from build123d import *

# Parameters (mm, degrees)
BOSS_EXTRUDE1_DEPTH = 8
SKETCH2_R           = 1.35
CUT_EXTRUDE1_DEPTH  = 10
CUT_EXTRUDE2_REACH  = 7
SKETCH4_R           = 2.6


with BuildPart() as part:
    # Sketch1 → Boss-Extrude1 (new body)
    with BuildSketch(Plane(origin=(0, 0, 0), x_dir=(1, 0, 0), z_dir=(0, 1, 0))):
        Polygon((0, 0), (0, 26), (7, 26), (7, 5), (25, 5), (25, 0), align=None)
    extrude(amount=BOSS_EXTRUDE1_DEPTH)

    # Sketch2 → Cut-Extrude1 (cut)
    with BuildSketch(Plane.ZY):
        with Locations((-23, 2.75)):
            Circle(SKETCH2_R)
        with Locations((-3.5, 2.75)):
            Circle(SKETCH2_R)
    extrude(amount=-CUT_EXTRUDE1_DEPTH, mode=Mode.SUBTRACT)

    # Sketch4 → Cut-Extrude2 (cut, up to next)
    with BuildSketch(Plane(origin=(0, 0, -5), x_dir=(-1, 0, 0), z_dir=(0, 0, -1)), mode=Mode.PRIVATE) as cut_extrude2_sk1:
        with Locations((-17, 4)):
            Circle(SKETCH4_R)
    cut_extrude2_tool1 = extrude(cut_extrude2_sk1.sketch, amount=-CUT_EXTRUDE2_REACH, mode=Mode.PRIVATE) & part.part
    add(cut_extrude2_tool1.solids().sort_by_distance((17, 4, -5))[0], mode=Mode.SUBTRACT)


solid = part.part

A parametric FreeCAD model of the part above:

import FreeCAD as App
import Part
import Sketcher

V = App.Vector
Q = App.Units.Quantity

doc = App.newDocument("Part")
body = doc.addObject("PartDesign::Body", "Body")

# Sketch on XZ plane
sketch1 = doc.addObject("Sketcher::SketchObject", "Sketch")
body.addObject(sketch1)
sketch1.AttachmentSupport = (doc.XZ_Plane, [""])
sketch1.MapMode = "FlatFace"
sketch1.addGeometry(Part.LineSegment(V(0, -26, 0), V(0, 0, 0)), False)
sketch1.addGeometry(Part.LineSegment(V(0, 0, 0), V(25, 0, 0)), False)
sketch1.addGeometry(Part.LineSegment(V(25, 0, 0), V(25, -5, 0)), False)
sketch1.addGeometry(Part.LineSegment(V(25, -5, 0), V(7, -5, 0)), False)
sketch1.addGeometry(Part.LineSegment(V(7, -5, 0), V(7, -26, 0)), False)
sketch1.addGeometry(Part.LineSegment(V(7, -26, 0), V(0, -26, 0)), False)
sketch1.addConstraint(Sketcher.Constraint("Coincident", 0, 2, 1, 1))
sketch1.addConstraint(Sketcher.Constraint("Coincident", 1, 2, 2, 1))
sketch1.addConstraint(Sketcher.Constraint("Coincident", 2, 2, 3, 1))
sketch1.addConstraint(Sketcher.Constraint("Coincident", 3, 2, 4, 1))
sketch1.addConstraint(Sketcher.Constraint("Coincident", 4, 2, 5, 1))
sketch1.addConstraint(Sketcher.Constraint("Coincident", 5, 2, 0, 1))
sketch1.addConstraint(Sketcher.Constraint("Vertical", 0))
sketch1.addConstraint(Sketcher.Constraint("Horizontal", 1))
sketch1.addConstraint(Sketcher.Constraint("Vertical", 2))
sketch1.addConstraint(Sketcher.Constraint("Horizontal", 3))
sketch1.addConstraint(Sketcher.Constraint("Vertical", 4))
sketch1.addConstraint(Sketcher.Constraint("Horizontal", 5))
sketch1.addConstraint(Sketcher.Constraint("Coincident", 0, 2, -1, 1))
sketch1.addConstraint(Sketcher.Constraint("DistanceX", 1, 1, 1, 2, Q("25 mm")))
sketch1.addConstraint(Sketcher.Constraint("DistanceX", 3, 2, 3, 1, Q("18 mm")))
sketch1.addConstraint(Sketcher.Constraint("DistanceY", 0, 1, 0, 2, Q("26 mm")))
sketch1.addConstraint(Sketcher.Constraint("DistanceY", 2, 2, 2, 1, Q("5 mm")))
pad1 = doc.addObject("PartDesign::Pad", "Pad")
body.addObject(pad1)
pad1.Profile = sketch1
pad1.Length = 8
pad1.Reversed = True

# Sketch on YZ plane
sketch2 = doc.addObject("Sketcher::SketchObject", "Sketch001")
body.addObject(sketch2)
sketch2.AttachmentSupport = (doc.YZ_Plane, [""])
sketch2.MapMode = "FlatFace"
sketch2.addGeometry(Part.Circle(V(2.8, -23, 0), V(0, 0, 1), 1.4), False)
sketch2.addGeometry(Part.Circle(V(2.8, -3.5, 0), V(0, 0, 1), 1.4), False)
sketch2.addConstraint(Sketcher.Constraint("Equal", 0, 1))
sketch2.addConstraint(Sketcher.Constraint("Vertical", 0, 3, 1, 3))
sketch2.addConstraint(Sketcher.Constraint("Diameter", 0, Q("2.7 mm")))
sketch2.addConstraint(Sketcher.Constraint("DistanceY", 0, 3, -1, 1, Q("23 mm")))
sketch2.addConstraint(Sketcher.Constraint("DistanceY", 1, 3, -1, 1, Q("3.5 mm")))
sketch2.addConstraint(Sketcher.Constraint("DistanceX", -1, 1, 0, 3, Q("2.75 mm")))
pocket1 = doc.addObject("PartDesign::Pocket", "Pocket")
body.addObject(pocket1)
pocket1.Profile = sketch2
pocket1.Length = 10
pocket1.Reversed = True

# Sketch on XY plane
sketch3 = doc.addObject("Sketcher::SketchObject", "Sketch002")
body.addObject(sketch3)
sketch3.AttachmentSupport = (doc.XY_Plane, [""])
sketch3.MapMode = "FlatFace"
sketch3.AttachmentOffset = App.Placement(V(0, 0, -5), App.Rotation())
sketch3.addGeometry(Part.Circle(V(17, 4, 0), V(0, 0, 1), 2.6), False)
sketch3.addConstraint(Sketcher.Constraint("Diameter", 0, Q("5.2 mm")))
sketch3.addConstraint(Sketcher.Constraint("DistanceX", -1, 1, 0, 3, Q("17 mm")))
sketch3.addConstraint(Sketcher.Constraint("DistanceY", -1, 1, 0, 3, Q("4 mm")))
pocket2 = doc.addObject("PartDesign::Pocket", "Pocket001")
body.addObject(pocket2)
pocket2.Profile = sketch3
pocket2.Type = "UpToFirst"
pocket2.Reversed = True

doc.recompute()
